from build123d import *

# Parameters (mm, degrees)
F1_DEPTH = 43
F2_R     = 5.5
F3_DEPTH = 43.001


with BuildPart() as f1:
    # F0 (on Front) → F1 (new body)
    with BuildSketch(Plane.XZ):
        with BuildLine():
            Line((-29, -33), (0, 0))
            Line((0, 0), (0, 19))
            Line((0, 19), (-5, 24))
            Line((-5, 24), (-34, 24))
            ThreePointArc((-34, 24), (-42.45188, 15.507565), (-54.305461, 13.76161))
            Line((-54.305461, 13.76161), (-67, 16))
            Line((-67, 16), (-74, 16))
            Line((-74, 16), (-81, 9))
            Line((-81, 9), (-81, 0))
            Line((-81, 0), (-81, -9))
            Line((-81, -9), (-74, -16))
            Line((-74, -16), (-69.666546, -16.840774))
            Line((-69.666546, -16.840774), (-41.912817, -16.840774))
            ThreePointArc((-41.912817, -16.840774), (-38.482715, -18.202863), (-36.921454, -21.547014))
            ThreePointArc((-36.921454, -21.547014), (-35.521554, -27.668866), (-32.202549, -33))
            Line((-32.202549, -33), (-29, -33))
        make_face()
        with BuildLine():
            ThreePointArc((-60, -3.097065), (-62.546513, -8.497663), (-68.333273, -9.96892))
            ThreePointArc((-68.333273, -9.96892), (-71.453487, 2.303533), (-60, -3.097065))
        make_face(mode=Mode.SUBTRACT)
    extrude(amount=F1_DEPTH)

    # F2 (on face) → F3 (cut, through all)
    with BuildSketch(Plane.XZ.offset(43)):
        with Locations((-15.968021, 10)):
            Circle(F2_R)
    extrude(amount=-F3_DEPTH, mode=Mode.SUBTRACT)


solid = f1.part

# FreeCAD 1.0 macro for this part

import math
import FreeCAD as App
import Part
import Sketcher
Q = App.Units.Quantity

doc = App.newDocument("Part")
body = doc.addObject("PartDesign::Body", "Body")

sketch1 = doc.addObject("Sketcher::SketchObject", "Sketch")
body.addObject(sketch1)
sketch1.AttachmentSupport = (doc.XZ_Plane, [""])
sketch1.MapMode = "FlatFace"
sketch1.addGeometry(Part.LineSegment(App.Vector(-29, -33, 0), App.Vector(0, 0, 0)), False)
sketch1.addGeometry(Part.LineSegment(App.Vector(0, 0, 0), App.Vector(0, 19, 0)), False)
sketch1.addGeometry(Part.LineSegment(App.Vector(0, 19, 0), App.Vector(-5, 24, 0)), False)
sketch1.addGeometry(Part.LineSegment(App.Vector(-5, 24, 0), App.Vector(-34, 24, 0)), False)
sketch1.addGeometry(Part.ArcOfCircle(Part.Circle(App.Vector(-51.006146, 32.472957, 0), App.Vector(0, 0, 1), 19), math.radians(-100), math.radians(-26.483823)), False)
sketch1.addGeometry(Part.LineSegment(App.Vector(-54.305461, 13.76161, 0), App.Vector(-67, 16, 0)), False)
sketch1.addGeometry(Part.LineSegment(App.Vector(-67, 16, 0), App.Vector(-74, 16, 0)), False)
sketch1.addGeometry(Part.LineSegment(App.Vector(-74, 16, 0), App.Vector(-81, 9, 0)), False)
sketch1.addGeometry(Part.LineSegment(App.Vector(-81, 9, 0), App.Vector(-81, -9, 0)), False)
sketch1.addGeometry(Part.LineSegment(App.Vector(-81, -9, 0), App.Vector(-74, -16, 0)), False)
sketch1.addGeometry(Part.LineSegment(App.Vector(-74, -16, 0), App.Vector(-69.666546, -16.840774, 0)), False)
sketch1.addGeometry(Part.LineSegment(App.Vector(-69.666546, -16.840774, 0), App.Vector(-41.912817, -16.840774, 0)), False)
sketch1.addGeometry(Part.ArcOfCircle(Part.Circle(App.Vector(-41.912818, -21.840775, 0), App.Vector(0, 0, 1), 5.000001), math.radians(3.368191), math.radians(89.999989)), False)
sketch1.addGeometry(Part.ArcOfCircle(Part.Circle(App.Vector(-17.954272, -20.430724, 0), App.Vector(0, 0, 1), 19.000003), math.radians(-176.631813), math.radians(-138.582515)), False)
sketch1.addGeometry(Part.LineSegment(App.Vector(-32.202549, -33, 0), App.Vector(-29, -33, 0)), False)
sketch1.addGeometry(Part.ArcOfCircle(Part.Circle(App.Vector(-67, -3.097065, 0), App.Vector(0, 0, 1), 7), math.radians(0.000002), math.radians(259.019931)), False)
sketch1.addGeometry(Part.ArcOfCircle(Part.Circle(App.Vector(-67, -3.097065, 0), App.Vector(0, 0, 1), 7), math.radians(-100.980071), math.radians(0.000003)), False)
sketch1.addConstraint(Sketcher.Constraint("Coincident", 0, 2, 1, 1))
sketch1.addConstraint(Sketcher.Constraint("Coincident", 1, 2, 2, 1))
sketch1.addConstraint(Sketcher.Constraint("Coincident", 2, 2, 3, 1))
sketch1.addConstraint(Sketcher.Constraint("Coincident", 3, 2, 4, 2))
sketch1.addConstraint(Sketcher.Constraint("Tangent", 4, 1, 5, 1))
sketch1.addConstraint(Sketcher.Constraint("Coincident", 5, 2, 6, 1))
sketch1.addConstraint(Sketcher.Constraint("Coincident", 6, 2, 7, 1))
sketch1.addConstraint(Sketcher.Constraint("Coincident", 7, 2, 8, 1))
sketch1.addConstraint(Sketcher.Constraint("Coincident", 8, 2, 9, 1))
sketch1.addConstraint(Sketcher.Constraint("Coincident", 9, 2, 10, 1))
sketch1.addConstraint(Sketcher.Constraint("Coincident", 10, 2, 11, 1))
sketch1.addConstraint(Sketcher.Constraint("Tangent", 11, 2, 12, 2))
sketch1.addConstraint(Sketcher.Constraint("Tangent", 12, 1, 13, 1))
sketch1.addConstraint(Sketcher.Constraint("Coincident", 13, 2, 14, 1))
sketch1.addConstraint(Sketcher.Constraint("Coincident", 14, 2, 0, 1))
sketch1.addConstraint(Sketcher.Constraint("Tangent", 15, 1, 16, 2))
sketch1.addConstraint(Sketcher.Constraint("Coincident", 16, 1, 15, 2))
sketch1.addConstraint(Sketcher.Constraint("Vertical", 1))
sketch1.addConstraint(Sketcher.Constraint("Horizontal", 3))
sketch1.addConstraint(Sketcher.Constraint("Horizontal", 6))
sketch1.addConstraint(Sketcher.Constraint("Vertical", 8))
sketch1.addConstraint(Sketcher.Constraint("Horizontal", 11))
sketch1.addConstraint(Sketcher.Constraint("Horizontal", 14))
sketch1.addConstraint(Sketcher.Constraint("Coincident", 0, 2, -1, 1))
sketch1.addConstraint(Sketcher.Constraint("Symmetric", 6, 2, 9, 2, -1))
sketch1.addConstraint(Sketcher.Constraint("Perpendicular", 2, 7))
sketch1.addConstraint(Sketcher.Constraint("Perpendicular", 7, 9))
sketch1.addConstraint(Sketcher.Constraint("Horizontal", 16, 3, 15, 1))
sketch1.addConstraint(Sketcher.Constraint("Vertical", 16, 3, 5, 2))
sketch1.addConstraint(Sketcher.Constraint("Equal", 7, 9))
sketch1.addConstraint(Sketcher.Constraint("Radius", 4, Q("19 mm")))
sketch1.addConstraint(Sketcher.Constraint("Radius", 12, Q("5.000001 mm")))
sketch1.addConstraint(Sketcher.Constraint("Radius", 15, Q("7 mm")))
sketch1.addConstraint(Sketcher.Constraint("DistanceX", 3, 2, 3, 1, Q("29 mm")))
sketch1.addConstraint(Sketcher.Constraint("DistanceX", 6, 2, 6, 1, Q("7 mm")))
sketch1.addConstraint(Sketcher.Constraint("DistanceY", 1, 1, 1, 2, Q("19 mm")))
sketch1.addConstraint(Sketcher.Constraint("DistanceY", 8, 2, 8, 1, Q("18 mm")))
sketch1.addConstraint(Sketcher.Constraint("Angle", 5, Q("169.999999 deg")))
sketch1.addConstraint(Sketcher.Constraint("DistanceX", 15, 3, -1, 1, Q("67 mm")))
sketch1.addConstraint(Sketcher.Constraint("DistanceX", 2, 2, -1, 1, Q("5 mm")))
sketch1.addConstraint(Sketcher.Constraint("DistanceY", -1, 1, 5, 2, Q("16 mm")))
sketch1.addConstraint(Sketcher.Constraint("DistanceY", 13, 2, -1, 1, Q("33 mm")))
sketch1.addConstraint(Sketcher.Constraint("DistanceX", 14, 2, -1, 1, Q("29 mm")))
sketch1.addConstraint(Sketcher.Constraint("Radius", 13, Q("19.000003 mm")))
sketch1.addConstraint(Sketcher.Constraint("DistanceX", 11, 1, 11, 2, Q("27.753729 mm")))
sketch1.addConstraint(Sketcher.Constraint("DistanceX", 14, 1, 14, 2, Q("3.202549 mm")))
sketch1.addConstraint(Sketcher.Constraint("DistanceX", 13, 3, -1, 1, Q("17.954272 mm")))
sketch1.addConstraint(Sketcher.Constraint("DistanceY", 16, 1, -1, 1, Q("9.96892 mm")))
sketch1.addConstraint(Sketcher.Constraint("DistanceY", 12, 3, 13, 3, Q("1.410051 mm")))
sketch1.addConstraint(Sketcher.Constraint("DistanceY", 12, 3, 15, 3, Q("18.74371 mm")))
pad1 = doc.addObject("PartDesign::Pad", "Pad")
body.addObject(pad1)
pad1.Profile = sketch1
pad1.Length = 43

sketch2 = doc.addObject("Sketcher::SketchObject", "Sketch001")
body.addObject(sketch2)
sketch2.AttachmentSupport = (doc.XZ_Plane, [""])
sketch2.MapMode = "FlatFace"
sketch2.AttachmentOffset = App.Placement(App.Vector(0, 0, 43), App.Rotation())
sketch2.addGeometry(Part.Circle(App.Vector(-15.968021, 10, 0), App.Vector(0, 0, 1), 5.5), False)
sketch2.addConstraint(Sketcher.Constraint("Diameter", 0, Q("11 mm")))
sketch2.addConstraint(Sketcher.Constraint("DistanceY", -1, 1, 0, 3, Q("10 mm")))
sketch2.addConstraint(Sketcher.Constraint("DistanceX", 0, 3, -1, 1, Q("15.968021 mm")))
pocket1 = doc.addObject("PartDesign::Pocket", "Pocket")
body.addObject(pocket1)
pocket1.Profile = sketch2
pocket1.Type = "ThroughAll"

doc.recompute()
